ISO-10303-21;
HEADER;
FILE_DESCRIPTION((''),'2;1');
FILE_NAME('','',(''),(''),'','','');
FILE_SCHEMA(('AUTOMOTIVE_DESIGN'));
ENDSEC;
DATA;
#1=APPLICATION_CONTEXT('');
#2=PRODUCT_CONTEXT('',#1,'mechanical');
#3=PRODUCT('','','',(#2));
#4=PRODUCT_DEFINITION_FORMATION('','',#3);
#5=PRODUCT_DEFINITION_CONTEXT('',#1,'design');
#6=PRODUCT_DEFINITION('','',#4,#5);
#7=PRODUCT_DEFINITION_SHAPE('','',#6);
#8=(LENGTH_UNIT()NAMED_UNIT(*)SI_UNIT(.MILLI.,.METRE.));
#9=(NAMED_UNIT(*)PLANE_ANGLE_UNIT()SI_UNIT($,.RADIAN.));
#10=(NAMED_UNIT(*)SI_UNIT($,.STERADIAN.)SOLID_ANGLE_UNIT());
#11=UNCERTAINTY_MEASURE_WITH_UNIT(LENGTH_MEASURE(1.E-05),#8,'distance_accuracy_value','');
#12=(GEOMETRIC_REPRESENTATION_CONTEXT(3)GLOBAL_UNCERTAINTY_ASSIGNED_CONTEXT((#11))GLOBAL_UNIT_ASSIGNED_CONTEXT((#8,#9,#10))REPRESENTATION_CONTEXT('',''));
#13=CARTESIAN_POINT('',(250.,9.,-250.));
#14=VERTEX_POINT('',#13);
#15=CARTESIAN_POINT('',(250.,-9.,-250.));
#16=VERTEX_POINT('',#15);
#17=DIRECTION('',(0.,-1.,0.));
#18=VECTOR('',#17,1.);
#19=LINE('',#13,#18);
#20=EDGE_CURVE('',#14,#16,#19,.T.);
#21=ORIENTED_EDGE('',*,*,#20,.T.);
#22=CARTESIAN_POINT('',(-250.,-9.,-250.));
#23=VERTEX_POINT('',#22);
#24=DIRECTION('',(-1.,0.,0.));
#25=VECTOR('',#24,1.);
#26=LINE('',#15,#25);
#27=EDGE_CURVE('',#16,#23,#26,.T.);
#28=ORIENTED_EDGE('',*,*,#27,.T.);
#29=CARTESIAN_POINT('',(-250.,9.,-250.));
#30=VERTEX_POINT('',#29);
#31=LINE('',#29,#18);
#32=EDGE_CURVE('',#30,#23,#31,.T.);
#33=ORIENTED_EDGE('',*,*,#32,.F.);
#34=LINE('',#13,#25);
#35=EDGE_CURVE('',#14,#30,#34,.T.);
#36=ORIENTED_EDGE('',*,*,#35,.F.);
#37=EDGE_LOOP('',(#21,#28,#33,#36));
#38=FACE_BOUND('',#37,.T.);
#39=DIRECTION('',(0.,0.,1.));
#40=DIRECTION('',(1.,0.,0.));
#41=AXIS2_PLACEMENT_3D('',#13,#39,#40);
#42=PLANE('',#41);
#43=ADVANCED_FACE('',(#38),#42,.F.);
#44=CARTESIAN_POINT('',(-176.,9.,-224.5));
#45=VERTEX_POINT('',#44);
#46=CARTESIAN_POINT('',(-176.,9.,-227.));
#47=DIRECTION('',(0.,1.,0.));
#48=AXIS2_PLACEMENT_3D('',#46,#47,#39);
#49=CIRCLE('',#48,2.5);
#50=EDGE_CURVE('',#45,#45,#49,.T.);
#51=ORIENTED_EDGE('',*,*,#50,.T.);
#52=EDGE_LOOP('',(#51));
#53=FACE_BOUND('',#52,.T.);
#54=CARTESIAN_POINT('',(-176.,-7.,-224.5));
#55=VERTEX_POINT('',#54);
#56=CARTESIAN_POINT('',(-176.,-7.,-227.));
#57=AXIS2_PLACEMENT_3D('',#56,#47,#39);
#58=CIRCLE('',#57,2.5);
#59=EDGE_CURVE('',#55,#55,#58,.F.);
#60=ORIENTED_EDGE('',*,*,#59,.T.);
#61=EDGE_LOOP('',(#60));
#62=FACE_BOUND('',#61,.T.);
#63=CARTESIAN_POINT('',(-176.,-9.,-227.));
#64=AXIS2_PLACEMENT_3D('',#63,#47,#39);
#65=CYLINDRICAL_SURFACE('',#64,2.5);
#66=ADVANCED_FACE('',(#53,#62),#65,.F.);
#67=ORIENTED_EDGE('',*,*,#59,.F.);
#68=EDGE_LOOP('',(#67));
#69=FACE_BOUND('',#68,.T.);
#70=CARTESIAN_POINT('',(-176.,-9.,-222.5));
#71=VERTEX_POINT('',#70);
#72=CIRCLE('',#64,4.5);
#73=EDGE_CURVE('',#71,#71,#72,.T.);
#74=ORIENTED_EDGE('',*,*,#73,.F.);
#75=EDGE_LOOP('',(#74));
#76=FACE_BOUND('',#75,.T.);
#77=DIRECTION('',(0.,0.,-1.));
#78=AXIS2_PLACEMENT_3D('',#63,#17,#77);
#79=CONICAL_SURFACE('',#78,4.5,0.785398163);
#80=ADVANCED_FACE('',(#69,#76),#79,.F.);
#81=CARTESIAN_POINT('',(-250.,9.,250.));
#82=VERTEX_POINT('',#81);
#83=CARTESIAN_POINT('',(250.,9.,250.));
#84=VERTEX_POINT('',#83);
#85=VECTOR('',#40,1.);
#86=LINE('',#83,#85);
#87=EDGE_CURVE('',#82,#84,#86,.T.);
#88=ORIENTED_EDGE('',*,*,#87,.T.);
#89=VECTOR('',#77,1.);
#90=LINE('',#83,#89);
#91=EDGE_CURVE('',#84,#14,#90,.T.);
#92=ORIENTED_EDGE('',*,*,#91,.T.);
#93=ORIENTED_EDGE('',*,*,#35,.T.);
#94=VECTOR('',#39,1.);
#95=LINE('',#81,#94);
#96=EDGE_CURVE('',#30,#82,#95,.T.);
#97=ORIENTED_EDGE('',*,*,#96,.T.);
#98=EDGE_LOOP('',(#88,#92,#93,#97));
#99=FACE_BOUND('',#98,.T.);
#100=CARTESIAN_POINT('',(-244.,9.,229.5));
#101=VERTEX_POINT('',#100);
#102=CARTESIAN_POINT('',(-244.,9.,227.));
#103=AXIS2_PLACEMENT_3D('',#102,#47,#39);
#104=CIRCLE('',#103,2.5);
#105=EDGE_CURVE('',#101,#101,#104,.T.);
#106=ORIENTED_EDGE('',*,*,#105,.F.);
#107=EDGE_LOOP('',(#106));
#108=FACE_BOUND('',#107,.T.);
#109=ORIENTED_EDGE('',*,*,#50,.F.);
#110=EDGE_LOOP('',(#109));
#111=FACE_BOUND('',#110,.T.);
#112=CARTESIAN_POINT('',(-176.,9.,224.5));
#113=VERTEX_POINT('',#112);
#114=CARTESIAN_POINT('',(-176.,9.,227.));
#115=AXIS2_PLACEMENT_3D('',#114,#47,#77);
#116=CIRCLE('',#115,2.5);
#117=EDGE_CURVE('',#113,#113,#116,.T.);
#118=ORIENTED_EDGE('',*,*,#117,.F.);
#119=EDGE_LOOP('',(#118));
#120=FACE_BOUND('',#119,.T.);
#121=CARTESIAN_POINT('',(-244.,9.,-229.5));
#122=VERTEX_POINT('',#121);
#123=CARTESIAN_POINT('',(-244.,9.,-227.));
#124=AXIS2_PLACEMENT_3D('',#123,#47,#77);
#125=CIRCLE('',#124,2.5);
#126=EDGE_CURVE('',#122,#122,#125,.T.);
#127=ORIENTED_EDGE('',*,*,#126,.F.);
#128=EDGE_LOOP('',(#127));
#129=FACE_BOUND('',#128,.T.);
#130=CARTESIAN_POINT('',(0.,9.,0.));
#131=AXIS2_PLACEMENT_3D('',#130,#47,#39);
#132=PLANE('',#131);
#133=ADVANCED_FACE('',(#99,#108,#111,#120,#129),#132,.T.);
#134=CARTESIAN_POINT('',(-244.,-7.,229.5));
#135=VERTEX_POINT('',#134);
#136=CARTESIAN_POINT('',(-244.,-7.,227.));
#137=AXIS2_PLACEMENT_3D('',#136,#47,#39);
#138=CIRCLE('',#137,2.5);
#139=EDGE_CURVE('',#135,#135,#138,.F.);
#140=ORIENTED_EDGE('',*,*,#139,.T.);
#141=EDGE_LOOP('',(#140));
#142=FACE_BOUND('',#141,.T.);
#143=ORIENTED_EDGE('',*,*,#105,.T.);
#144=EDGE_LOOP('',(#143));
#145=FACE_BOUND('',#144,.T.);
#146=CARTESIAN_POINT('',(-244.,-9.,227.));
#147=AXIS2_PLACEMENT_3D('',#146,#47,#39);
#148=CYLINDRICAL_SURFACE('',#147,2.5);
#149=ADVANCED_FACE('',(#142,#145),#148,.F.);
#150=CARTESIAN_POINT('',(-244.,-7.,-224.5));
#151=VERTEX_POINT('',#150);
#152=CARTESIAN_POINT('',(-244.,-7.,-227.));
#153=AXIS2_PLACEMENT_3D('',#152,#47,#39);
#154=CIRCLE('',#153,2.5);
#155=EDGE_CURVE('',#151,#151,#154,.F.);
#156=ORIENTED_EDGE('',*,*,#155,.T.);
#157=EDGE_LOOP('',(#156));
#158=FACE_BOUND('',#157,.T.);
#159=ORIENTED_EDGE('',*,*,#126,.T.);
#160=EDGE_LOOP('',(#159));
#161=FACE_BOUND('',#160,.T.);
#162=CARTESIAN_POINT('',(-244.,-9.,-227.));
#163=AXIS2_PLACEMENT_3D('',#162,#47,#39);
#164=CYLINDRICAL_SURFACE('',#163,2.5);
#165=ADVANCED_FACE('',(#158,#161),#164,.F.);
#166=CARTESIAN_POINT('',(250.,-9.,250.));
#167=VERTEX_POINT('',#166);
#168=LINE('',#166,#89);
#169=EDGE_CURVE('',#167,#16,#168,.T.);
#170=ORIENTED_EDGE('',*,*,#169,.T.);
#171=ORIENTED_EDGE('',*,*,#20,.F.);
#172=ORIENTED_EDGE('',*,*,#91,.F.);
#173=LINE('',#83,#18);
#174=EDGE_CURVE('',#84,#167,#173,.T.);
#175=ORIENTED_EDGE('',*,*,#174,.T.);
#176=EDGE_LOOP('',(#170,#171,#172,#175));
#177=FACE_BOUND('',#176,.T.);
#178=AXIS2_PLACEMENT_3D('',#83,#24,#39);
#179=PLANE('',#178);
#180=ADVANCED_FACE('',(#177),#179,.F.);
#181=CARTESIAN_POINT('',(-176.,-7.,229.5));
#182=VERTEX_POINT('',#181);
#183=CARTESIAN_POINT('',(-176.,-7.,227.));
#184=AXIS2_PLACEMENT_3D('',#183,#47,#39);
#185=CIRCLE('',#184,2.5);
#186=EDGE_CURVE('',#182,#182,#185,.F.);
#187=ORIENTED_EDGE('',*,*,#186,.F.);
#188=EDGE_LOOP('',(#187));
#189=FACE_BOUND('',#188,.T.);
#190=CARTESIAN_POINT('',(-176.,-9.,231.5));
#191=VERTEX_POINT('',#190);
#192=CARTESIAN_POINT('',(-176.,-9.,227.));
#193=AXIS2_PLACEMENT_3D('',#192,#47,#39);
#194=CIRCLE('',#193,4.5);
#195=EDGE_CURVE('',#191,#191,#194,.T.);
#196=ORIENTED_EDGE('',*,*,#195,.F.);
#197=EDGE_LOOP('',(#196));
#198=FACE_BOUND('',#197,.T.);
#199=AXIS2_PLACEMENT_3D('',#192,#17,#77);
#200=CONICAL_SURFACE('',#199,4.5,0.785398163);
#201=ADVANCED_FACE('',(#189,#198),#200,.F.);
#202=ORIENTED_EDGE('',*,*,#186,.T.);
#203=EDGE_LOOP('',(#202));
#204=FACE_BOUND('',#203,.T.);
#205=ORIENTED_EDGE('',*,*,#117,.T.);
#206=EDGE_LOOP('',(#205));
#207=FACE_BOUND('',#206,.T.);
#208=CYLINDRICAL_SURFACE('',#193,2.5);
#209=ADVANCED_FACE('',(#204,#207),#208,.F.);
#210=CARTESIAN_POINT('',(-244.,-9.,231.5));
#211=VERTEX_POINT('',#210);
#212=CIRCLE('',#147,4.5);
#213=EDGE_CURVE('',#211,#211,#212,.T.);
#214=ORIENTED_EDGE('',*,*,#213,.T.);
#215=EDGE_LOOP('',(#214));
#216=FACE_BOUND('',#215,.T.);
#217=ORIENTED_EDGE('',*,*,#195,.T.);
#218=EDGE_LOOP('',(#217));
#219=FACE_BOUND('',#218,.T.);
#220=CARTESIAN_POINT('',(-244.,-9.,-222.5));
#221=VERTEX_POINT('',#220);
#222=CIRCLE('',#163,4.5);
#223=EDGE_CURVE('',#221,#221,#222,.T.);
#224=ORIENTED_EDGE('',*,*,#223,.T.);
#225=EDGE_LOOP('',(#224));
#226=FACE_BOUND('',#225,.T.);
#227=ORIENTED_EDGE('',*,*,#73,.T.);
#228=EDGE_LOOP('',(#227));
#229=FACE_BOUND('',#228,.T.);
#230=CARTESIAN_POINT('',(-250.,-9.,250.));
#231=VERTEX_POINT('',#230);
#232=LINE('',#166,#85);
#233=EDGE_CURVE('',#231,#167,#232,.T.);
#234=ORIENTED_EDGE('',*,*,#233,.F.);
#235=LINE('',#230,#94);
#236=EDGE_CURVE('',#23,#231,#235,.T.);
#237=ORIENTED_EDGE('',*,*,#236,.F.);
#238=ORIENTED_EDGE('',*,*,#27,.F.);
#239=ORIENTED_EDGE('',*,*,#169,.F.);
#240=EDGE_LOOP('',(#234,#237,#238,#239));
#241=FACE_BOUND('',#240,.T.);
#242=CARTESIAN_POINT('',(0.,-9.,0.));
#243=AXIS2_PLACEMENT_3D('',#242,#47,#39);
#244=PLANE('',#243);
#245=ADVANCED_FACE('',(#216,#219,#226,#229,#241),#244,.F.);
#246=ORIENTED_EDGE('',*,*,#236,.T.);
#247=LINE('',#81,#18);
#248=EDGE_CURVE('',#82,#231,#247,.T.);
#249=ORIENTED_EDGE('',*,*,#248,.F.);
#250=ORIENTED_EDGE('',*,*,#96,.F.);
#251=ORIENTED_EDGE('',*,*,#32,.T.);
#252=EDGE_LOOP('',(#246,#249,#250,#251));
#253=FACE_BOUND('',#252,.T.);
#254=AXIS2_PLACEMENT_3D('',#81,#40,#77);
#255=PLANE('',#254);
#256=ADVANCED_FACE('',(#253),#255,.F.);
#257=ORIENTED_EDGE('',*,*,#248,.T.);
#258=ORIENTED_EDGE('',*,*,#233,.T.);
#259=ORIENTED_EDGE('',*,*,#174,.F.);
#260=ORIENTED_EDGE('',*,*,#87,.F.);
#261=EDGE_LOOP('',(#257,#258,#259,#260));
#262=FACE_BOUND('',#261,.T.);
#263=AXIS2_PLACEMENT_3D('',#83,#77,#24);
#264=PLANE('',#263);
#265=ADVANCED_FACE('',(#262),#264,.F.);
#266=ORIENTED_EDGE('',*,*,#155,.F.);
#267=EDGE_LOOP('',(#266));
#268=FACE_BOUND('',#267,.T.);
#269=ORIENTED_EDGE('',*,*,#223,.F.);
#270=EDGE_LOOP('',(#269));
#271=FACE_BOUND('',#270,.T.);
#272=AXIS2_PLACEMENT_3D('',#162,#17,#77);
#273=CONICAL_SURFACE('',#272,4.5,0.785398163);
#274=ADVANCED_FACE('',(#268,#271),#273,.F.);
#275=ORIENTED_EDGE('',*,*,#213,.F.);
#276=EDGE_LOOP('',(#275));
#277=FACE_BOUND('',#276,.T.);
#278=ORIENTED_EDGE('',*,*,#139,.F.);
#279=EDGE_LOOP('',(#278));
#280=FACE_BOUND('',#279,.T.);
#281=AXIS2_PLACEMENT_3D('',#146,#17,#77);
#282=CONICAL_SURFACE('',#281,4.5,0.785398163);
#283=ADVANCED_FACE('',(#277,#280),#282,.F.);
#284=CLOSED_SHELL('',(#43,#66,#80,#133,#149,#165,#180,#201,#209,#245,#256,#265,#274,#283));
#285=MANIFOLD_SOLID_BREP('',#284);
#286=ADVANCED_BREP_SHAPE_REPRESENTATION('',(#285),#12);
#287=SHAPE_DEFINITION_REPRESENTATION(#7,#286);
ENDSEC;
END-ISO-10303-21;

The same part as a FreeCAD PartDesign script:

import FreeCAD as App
import Part
import Sketcher
from FreeCAD import Vector


def edges_at(feature, points):
    """Names of the edges that pass closest to the given points."""
    edges = feature.Shape.Edges
    near = lambda p: min(range(len(edges)), key=lambda i: edges[i].distToShape(Part.Vertex(*p))[0])
    return sorted({f"Edge{near(p) + 1}" for p in points})


def add_polygon(sketch, points):
    """Adds a closed chain of lines whose ends are joined by coincident constraints."""
    first, n = sketch.GeometryCount, len(points)
    for a, b in zip(points, points[1:] + points[:1]):
        sketch.addGeometry(Part.LineSegment(App.Vector(*a, 0), App.Vector(*b, 0)), False)
    for i in range(n):
        sketch.addConstraint(Sketcher.Constraint("Coincident", first + i, 2, first + (i + 1) % n, 1))

doc = App.newDocument("Part")
body = doc.addObject("PartDesign::Body", "Body")

# Sketch on XZ plane
sketch1 = body.newObject("Sketcher::SketchObject", "Sketch")
sketch1.AttachmentSupport = (doc.getObject("XZ_Plane"), [""])
sketch1.MapMode = "FlatFace"
add_polygon(sketch1, [(-250, -250), (-250, 250), (250, 250), (250, -250)])  # lines 0-3
sketch1.addConstraint(Sketcher.Constraint("Vertical", 0))
sketch1.addConstraint(Sketcher.Constraint("Horizontal", 1))
sketch1.addConstraint(Sketcher.Constraint("Vertical", 2))
sketch1.addConstraint(Sketcher.Constraint("Horizontal", 3))
sketch1.addConstraint(Sketcher.Constraint("Symmetric", 0, 2, 2, 2, -1, 1))
sketch1.addConstraint(Sketcher.Constraint("Equal", 3, 0))
sketch1.addConstraint(Sketcher.Constraint("DistanceX", 1, 1, 1, 2, 500.0))
pad1 = body.newObject("PartDesign::Pad", "Pad")
pad1.Profile = sketch1
pad1.Length = 18
pad1.Midplane = True

# Sketch on XZ plane
sketch2 = body.newObject("Sketcher::SketchObject", "Sketch001")
sketch2.AttachmentSupport = (doc.getObject("XZ_Plane"), [""])
sketch2.MapMode = "FlatFace"
sketch2.AttachmentOffset = App.Placement(Vector(0, 0, -9), App.Rotation())
sketch2.addGeometry(Part.Circle(Vector(-176, -227, 0), Vector(0, 0, 1), 2.5), False)
sketch2.addGeometry(Part.Circle(Vector(-244, -227, 0), Vector(0, 0, 1), 2.5), False)
sketch2.addGeometry(Part.Circle(Vector(-244, 227, 0), Vector(0, 0, 1), 2.5), False)
sketch2.addGeometry(Part.Circle(Vector(-176, 227, 0), Vector(0, 0, 1), 2.5), False)
sketch2.addConstraint(Sketcher.Constraint("Equal", 0, 1))
sketch2.addConstraint(Sketcher.Constraint("Equal", 1, 2))
sketch2.addConstraint(Sketcher.Constraint("Equal", 2, 3))
sketch2.addConstraint(Sketcher.Constraint("Symmetric", 1, 3, 2, 3, -1))
sketch2.addConstraint(Sketcher.Constraint("Symmetric", 0, 3, 3, 3, -1))
sketch2.addConstraint(Sketcher.Constraint("Horizontal", 0, 3, 1, 3))
sketch2.addConstraint(Sketcher.Constraint("Diameter", 0, 5.0))
sketch2.addConstraint(Sketcher.Constraint("DistanceX", 0, 3, -1, 1, 176.0))
sketch2.addConstraint(Sketcher.Constraint("DistanceY", 0, 3, -1, 1, 227.0))
sketch2.addConstraint(Sketcher.Constraint("DistanceX", 1, 3, -1, 1, 244.0))
pocket1 = body.newObject("PartDesign::Pocket", "Pocket")
pocket1.Profile = sketch2
pocket1.Type = "ThroughAll"
pocket1.Reversed = True
doc.recompute()

chamfer = body.newObject("PartDesign::Chamfer", "Chamfer")
chamfer.Base = (pocket1, edges_at(pocket1, [
    (-244, -9, -224.5),
    (-176, -9, -229.5),
    (-176, -9, 229.5),
    (-244, -9, 224.5),
]))
chamfer.Size = 2

doc.recompute()
